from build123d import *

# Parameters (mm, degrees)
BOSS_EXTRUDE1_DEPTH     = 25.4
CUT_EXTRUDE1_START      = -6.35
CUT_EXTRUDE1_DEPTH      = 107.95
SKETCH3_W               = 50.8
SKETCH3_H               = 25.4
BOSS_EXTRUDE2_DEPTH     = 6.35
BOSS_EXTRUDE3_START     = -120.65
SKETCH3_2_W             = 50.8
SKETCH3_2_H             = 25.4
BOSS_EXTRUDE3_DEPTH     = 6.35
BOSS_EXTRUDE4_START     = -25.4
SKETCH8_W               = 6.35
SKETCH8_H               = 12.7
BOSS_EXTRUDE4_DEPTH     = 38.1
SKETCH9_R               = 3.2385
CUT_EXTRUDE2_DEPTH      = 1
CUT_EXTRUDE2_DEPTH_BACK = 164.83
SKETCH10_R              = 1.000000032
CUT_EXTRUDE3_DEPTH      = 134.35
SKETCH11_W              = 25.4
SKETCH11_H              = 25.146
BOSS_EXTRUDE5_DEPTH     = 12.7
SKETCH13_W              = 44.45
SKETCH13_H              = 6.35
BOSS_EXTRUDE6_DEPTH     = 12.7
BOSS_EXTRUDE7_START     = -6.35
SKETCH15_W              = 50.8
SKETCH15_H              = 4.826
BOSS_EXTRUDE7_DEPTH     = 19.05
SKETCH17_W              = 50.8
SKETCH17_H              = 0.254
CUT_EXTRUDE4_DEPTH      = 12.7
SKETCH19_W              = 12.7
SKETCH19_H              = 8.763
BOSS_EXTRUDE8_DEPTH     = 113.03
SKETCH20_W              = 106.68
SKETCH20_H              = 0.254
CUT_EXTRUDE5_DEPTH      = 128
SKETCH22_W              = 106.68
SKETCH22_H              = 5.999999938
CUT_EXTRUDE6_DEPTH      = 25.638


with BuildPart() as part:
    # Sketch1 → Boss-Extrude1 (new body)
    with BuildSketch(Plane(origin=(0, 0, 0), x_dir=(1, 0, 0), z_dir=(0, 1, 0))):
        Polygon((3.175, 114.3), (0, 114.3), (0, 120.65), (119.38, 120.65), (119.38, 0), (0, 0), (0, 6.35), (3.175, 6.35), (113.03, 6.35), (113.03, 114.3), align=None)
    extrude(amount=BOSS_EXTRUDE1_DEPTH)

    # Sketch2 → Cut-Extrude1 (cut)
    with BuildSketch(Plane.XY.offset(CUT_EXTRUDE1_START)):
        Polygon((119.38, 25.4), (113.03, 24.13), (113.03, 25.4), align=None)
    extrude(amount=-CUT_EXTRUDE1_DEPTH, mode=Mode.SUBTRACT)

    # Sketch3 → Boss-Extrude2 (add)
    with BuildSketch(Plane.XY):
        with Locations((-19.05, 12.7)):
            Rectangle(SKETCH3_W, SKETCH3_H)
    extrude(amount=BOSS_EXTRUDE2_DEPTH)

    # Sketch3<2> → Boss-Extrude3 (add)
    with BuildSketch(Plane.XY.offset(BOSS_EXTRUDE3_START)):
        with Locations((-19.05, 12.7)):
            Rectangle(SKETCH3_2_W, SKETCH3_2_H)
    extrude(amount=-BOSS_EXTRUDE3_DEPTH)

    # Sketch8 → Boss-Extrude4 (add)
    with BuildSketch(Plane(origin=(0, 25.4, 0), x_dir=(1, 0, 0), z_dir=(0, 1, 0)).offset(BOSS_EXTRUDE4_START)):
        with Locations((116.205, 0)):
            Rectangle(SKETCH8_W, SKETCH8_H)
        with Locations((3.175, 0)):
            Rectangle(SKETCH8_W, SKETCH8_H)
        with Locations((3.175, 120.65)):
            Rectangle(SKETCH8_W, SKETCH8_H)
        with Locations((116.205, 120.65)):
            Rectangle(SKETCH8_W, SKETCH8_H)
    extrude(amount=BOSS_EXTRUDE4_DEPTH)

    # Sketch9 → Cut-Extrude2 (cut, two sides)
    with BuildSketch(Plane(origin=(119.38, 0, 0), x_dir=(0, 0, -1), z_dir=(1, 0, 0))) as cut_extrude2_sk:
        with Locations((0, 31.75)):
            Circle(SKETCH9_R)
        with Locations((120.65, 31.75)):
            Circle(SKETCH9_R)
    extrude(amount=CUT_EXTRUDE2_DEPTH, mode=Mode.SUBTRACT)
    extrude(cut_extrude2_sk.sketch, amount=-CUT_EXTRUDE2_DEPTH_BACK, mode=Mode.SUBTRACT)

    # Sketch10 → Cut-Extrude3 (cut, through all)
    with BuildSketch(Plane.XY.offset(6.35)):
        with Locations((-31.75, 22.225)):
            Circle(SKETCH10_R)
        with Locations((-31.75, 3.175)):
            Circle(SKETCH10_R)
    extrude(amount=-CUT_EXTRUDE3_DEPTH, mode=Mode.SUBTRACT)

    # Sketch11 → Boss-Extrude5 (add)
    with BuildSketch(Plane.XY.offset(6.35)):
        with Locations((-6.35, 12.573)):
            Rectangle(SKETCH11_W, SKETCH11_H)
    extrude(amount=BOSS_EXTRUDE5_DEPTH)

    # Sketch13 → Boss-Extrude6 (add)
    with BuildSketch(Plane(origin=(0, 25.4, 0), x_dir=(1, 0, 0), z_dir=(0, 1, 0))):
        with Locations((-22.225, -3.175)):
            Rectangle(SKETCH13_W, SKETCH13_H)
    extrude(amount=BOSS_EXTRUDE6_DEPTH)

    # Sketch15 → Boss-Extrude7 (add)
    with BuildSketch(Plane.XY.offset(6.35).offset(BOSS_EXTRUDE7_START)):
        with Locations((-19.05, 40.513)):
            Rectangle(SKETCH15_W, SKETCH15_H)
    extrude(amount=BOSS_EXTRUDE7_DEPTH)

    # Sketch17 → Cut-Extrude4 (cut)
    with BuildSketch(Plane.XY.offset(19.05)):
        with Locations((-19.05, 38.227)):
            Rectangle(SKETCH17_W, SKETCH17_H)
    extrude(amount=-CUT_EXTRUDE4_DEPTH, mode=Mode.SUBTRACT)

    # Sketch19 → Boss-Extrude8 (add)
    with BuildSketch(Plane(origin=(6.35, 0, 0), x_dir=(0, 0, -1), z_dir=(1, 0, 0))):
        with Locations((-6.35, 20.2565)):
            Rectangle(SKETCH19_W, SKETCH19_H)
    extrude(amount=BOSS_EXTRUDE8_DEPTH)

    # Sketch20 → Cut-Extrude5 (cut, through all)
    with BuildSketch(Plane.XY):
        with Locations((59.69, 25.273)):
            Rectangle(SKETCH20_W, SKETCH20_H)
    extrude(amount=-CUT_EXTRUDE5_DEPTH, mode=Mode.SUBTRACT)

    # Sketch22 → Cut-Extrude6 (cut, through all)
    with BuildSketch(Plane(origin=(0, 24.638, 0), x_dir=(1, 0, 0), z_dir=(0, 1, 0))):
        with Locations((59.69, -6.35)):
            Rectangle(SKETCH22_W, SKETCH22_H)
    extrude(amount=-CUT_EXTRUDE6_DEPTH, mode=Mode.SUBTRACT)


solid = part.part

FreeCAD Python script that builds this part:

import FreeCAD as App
import Part
import Sketcher

V = App.Vector
Q = App.Units.Quantity


def add_polygon(sketch, points):
    """Adds a closed chain of lines whose ends are joined by coincident constraints."""
    first, n = sketch.GeometryCount, len(points)
    for a, b in zip(points, points[1:] + points[:1]):
        sketch.addGeometry(Part.LineSegment(App.Vector(*a, 0), App.Vector(*b, 0)), False)
    for i in range(n):
        sketch.addConstraint(Sketcher.Constraint("Coincident", first + i, 2, first + (i + 1) % n, 1))

doc = App.newDocument("Part")
body = doc.addObject("PartDesign::Body", "Body")

sketch1 = doc.addObject("Sketcher::SketchObject", "Sketch")
body.addObject(sketch1)
sketch1.AttachmentSupport = (doc.XZ_Plane, [""])
sketch1.MapMode = "FlatFace"
add_polygon(sketch1, [(0, -114), (113, -114), (113, -6), (0, -6), (0, 0), (119, 0), (119, -121), (0, -121)])
sketch1.addConstraint([
    Sketcher.Constraint("Horizontal", 0),
    Sketcher.Constraint("Vertical", 1),
    Sketcher.Constraint("Horizontal", 2),
    Sketcher.Constraint("Vertical", 3),
    Sketcher.Constraint("Horizontal", 4),
    Sketcher.Constraint("Vertical", 5),
    Sketcher.Constraint("Horizontal", 6),
    Sketcher.Constraint("Vertical", 7),
    Sketcher.Constraint("Coincident", 3, 2, -1, 1),
    Sketcher.Constraint("PointOnObject", 6, 2, -2),
    Sketcher.Constraint("Equal", 3, 7),
    Sketcher.Constraint("DistanceX", 4, 1, 4, 2, Q("4.7 in")),
    Sketcher.Constraint("DistanceX", 0, 1, 0, 2, Q("4.45 in")),
    Sketcher.Constraint("DistanceY", 1, 1, 1, 2, Q("4.25 in")),
    Sketcher.Constraint("DistanceY", 3, 1, 3, 2, Q("0.25 in")),
])
pad1 = doc.addObject("PartDesign::Pad", "Pad")
body.addObject(pad1)
pad1.Profile = sketch1
pad1.Length = Q("1 in")
pad1.Reversed = True

sketch2 = doc.addObject("Sketcher::SketchObject", "Sketch001")
body.addObject(sketch2)
sketch2.AttachmentSupport = (doc.XY_Plane, [""])
sketch2.MapMode = "FlatFace"
sketch2.AttachmentOffset = App.Placement(V(0, 0, -0.25 * 25.4), App.Rotation())
add_polygon(sketch2, [(113, 24.1), (119.4, 25.4), (113, 25.4)])
sketch2.addConstraint([
    Sketcher.Constraint("Horizontal", 1),
    Sketcher.Constraint("Vertical", 2),
    Sketcher.Constraint("DistanceY", -1, 1, 0, 2, Q("1 in")),
    Sketcher.Constraint("DistanceX", 1, 2, 1, 1, Q("0.25 in")),
    Sketcher.Constraint("DistanceY", 2, 2, 2, 1, Q("0.05 in")),
    Sketcher.Constraint("DistanceX", -1, 1, 0, 2, Q("4.7 in")),
])
pocket1 = doc.addObject("PartDesign::Pocket", "Pocket")
body.addObject(pocket1)
pocket1.Profile = sketch2
pocket1.Length = Q("4.25 in")

sketch3 = doc.addObject("Sketcher::SketchObject", "Sketch002")
body.addObject(sketch3)
sketch3.AttachmentSupport = (doc.XY_Plane, [""])
sketch3.MapMode = "FlatFace"
add_polygon(sketch3, [(-44, 25), (-44, 0), (6, 0), (6, 25)])
sketch3.addConstraint([
    Sketcher.Constraint("Vertical", 0),
    Sketcher.Constraint("Horizontal", 1),
    Sketcher.Constraint("Vertical", 2),
    Sketcher.Constraint("Horizontal", 3),
    Sketcher.Constraint("PointOnObject", 0, 2, -1),
    Sketcher.Constraint("DistanceX", 1, 1, 1, 2, Q("2 in")),
    Sketcher.Constraint("DistanceY", 0, 2, 0, 1, Q("1 in")),
    Sketcher.Constraint("DistanceX", 0, 2, -1, 1, Q("1.75 in")),
])
pad2 = doc.addObject("PartDesign::Pad", "Pad001")
body.addObject(pad2)
pad2.Profile = sketch3
pad2.Length = Q("0.25 in")

sketch4 = doc.addObject("Sketcher::SketchObject", "Sketch003")
body.addObject(sketch4)
sketch4.AttachmentSupport = (doc.XY_Plane, [""])
sketch4.MapMode = "FlatFace"
sketch4.AttachmentOffset = App.Placement(V(0, 0, -4.75 * 25.4), App.Rotation())
add_polygon(sketch4, [(-44, 25), (-44, 0), (6, 0), (6, 25)])
sketch4.addConstraint([
    Sketcher.Constraint("Vertical", 0),
    Sketcher.Constraint("Horizontal", 1),
    Sketcher.Constraint("Vertical", 2),
    Sketcher.Constraint("Horizontal", 3),
    Sketcher.Constraint("PointOnObject", 0, 2, -1),
    Sketcher.Constraint("DistanceX", 1, 1, 1, 2, Q("2 in")),
    Sketcher.Constraint("DistanceY", 0, 2, 0, 1, Q("1 in")),
    Sketcher.Constraint("DistanceX", 0, 2, -1, 1, Q("1.75 in")),
])
pad3 = doc.addObject("PartDesign::Pad", "Pad002")
body.addObject(pad3)
pad3.Profile = sketch4
pad3.Length = Q("0.25 in")
pad3.Reversed = True

sketch5 = doc.addObject("Sketcher::SketchObject", "Sketch004")
body.addObject(sketch5)
sketch5.AttachmentSupport = (doc.XZ_Plane, [""])
sketch5.MapMode = "FlatFace"
add_polygon(sketch5, [(113, -6), (113, 6), (119, 6), (119, -6)])
add_polygon(sketch5, [(0, -6), (0, 6), (6, 6), (6, -6)])
add_polygon(sketch5, [(0, -127), (0, -114), (6, -114), (6, -127)])
add_polygon(sketch5, [(113, -127), (113, -114), (119, -114), (119, -127)])
sketch5.addConstraint([
    Sketcher.Constraint("Vertical", 0),
    Sketcher.Constraint("Horizontal", 1),
    Sketcher.Constraint("Vertical", 2),
    Sketcher.Constraint("Horizontal", 3),
    Sketcher.Constraint("Vertical", 4),
    Sketcher.Constraint("Horizontal", 5),
    Sketcher.Constraint("Vertical", 6),
    Sketcher.Constraint("Horizontal", 7),
    Sketcher.Constraint("Vertical", 8),
    Sketcher.Constraint("Horizontal", 9),
    Sketcher.Constraint("Vertical", 10),
    Sketcher.Constraint("Horizontal", 11),
    Sketcher.Constraint("Vertical", 12),
    Sketcher.Constraint("Horizontal", 13),
    Sketcher.Constraint("Vertical", 14),
    Sketcher.Constraint("Horizontal", 15),
    Sketcher.Constraint("Symmetric", 4, 2, 7, 2, -1, 1),
    Sketcher.Constraint("PointOnObject", 8, 2, -2),
    Sketcher.Constraint("Horizontal", 1, 2, 4, 2),
    Sketcher.Constraint("Horizontal", 3, 2, 6, 2),
    Sketcher.Constraint("Horizontal", 9, 2, 12, 2),
    Sketcher.Constraint("Horizontal", 11, 2, 14, 2),
    Sketcher.Constraint("Vertical", 6, 2, 9, 2),
    Sketcher.Constraint("Vertical", 3, 2, 12, 2),
    Sketcher.Constraint("Vertical", 2, 2, 13, 2),
    Sketcher.Constraint("Equal", 3, 5),
    Sketcher.Constraint("Equal", 6, 8),
    Sketcher.Constraint("DistanceY", 0, 1, 0, 2, Q("0.5 in")),
    Sketcher.Constraint("DistanceY", 10, 2, -1, 1, Q("5 in")),
    Sketcher.Constraint("DistanceX", 1, 1, 1, 2, Q("0.25 in")),
    Sketcher.Constraint("DistanceX", -1, 1, 1, 2, Q("4.7 in")),
])
pad4 = doc.addObject("PartDesign::Pad", "Pad003")
body.addObject(pad4)
pad4.Profile = sketch5
pad4.Length = Q("1.5 in")
pad4.Reversed = True

sketch6 = doc.addObject("Sketcher::SketchObject", "Sketch005")
body.addObject(sketch6)
sketch6.AttachmentSupport = (doc.YZ_Plane, [""])
sketch6.MapMode = "FlatFace"
sketch6.AttachmentOffset = App.Placement(V(0, 0, 4.7 * 25.4), App.Rotation())
sketch6.addGeometry([
    Part.Circle(V(31.8, 0, 0), V(0, 0, 1), 3.2),
    Part.Circle(V(31.8, -120.7, 0), V(0, 0, 1), 3.2),
], False)
sketch6.addConstraint([
    Sketcher.Constraint("Equal", 0, 1),
    Sketcher.Constraint("PointOnObject", 0, 3, -1),
    Sketcher.Constraint("Vertical", 0, 3, 1, 3),
    Sketcher.Constraint("Diameter", 0, Q("0.255 in")),
    Sketcher.Constraint("DistanceX", -1, 1, 0, 3, Q("1.25 in")),
    Sketcher.Constraint("DistanceY", 1, 3, -1, 1, Q("4.75 in")),
])
pocket2 = doc.addObject("PartDesign::Pocket", "Pocket001")
body.addObject(pocket2)
pocket2.Profile = sketch6
pocket2.Type = "ThroughAll"
pocket2.Midplane = True

sketch7 = doc.addObject("Sketcher::SketchObject", "Sketch006")
body.addObject(sketch7)
sketch7.AttachmentSupport = (doc.XY_Plane, [""])
sketch7.MapMode = "FlatFace"
sketch7.AttachmentOffset = App.Placement(V(0, 0, 0.25 * 25.4), App.Rotation())
sketch7.addGeometry([
    Part.Circle(V(-31.8, 22.2, 0), V(0, 0, 1), 1),
    Part.Circle(V(-31.8, 3.2, 0), V(0, 0, 1), 1),
], False)
sketch7.addConstraint([
    Sketcher.Constraint("Equal", 0, 1),
    Sketcher.Constraint("Vertical", 0, 3, 1, 3),
    Sketcher.Constraint("Diameter", 0, 2.0),
    Sketcher.Constraint("DistanceX", 0, 3, -1, 1, Q("1.25 in")),
    Sketcher.Constraint("DistanceY", 1, 3, 0, 3, Q("0.75 in")),
    Sketcher.Constraint("DistanceY", -1, 1, 0, 3, Q("0.875 in")),
])
pocket3 = doc.addObject("PartDesign::Pocket", "Pocket002")
body.addObject(pocket3)
pocket3.Profile = sketch7
pocket3.Type = "ThroughAll"

sketch8 = doc.addObject("Sketcher::SketchObject", "Sketch007")
body.addObject(sketch8)
sketch8.AttachmentSupport = (doc.XY_Plane, [""])
sketch8.MapMode = "FlatFace"
sketch8.AttachmentOffset = App.Placement(V(0, 0, 0.25 * 25.4), App.Rotation())
add_polygon(sketch8, [(-19, 25), (-19, 0), (6, 0), (6, 25)])
sketch8.addConstraint([
    Sketcher.Constraint("Vertical", 0),
    Sketcher.Constraint("Horizontal", 1),
    Sketcher.Constraint("Vertical", 2),
    Sketcher.Constraint("Horizontal", 3),
    Sketcher.Constraint("PointOnObject", 0, 2, -1),
    Sketcher.Constraint("DistanceX", 1, 1, 1, 2, Q("1 in")),
    Sketcher.Constraint("DistanceY", 0, 2, 0, 1, Q("0.99 in")),
    Sketcher.Constraint("DistanceX", 0, 2, -1, 1, Q("0.75 in")),
])
pad5 = doc.addObject("PartDesign::Pad", "Pad004")
body.addObject(pad5)
pad5.Profile = sketch8
pad5.Length = Q("0.5 in")

sketch9 = doc.addObject("Sketcher::SketchObject", "Sketch008")
body.addObject(sketch9)
sketch9.AttachmentSupport = (doc.XZ_Plane, [""])
sketch9.MapMode = "FlatFace"
sketch9.AttachmentOffset = App.Placement(V(0, 0, -1 * 25.4), App.Rotation())
add_polygon(sketch9, [(-44, 0), (-44, 6), (0, 6), (0, 0)])
sketch9.addConstraint([
    Sketcher.Constraint("Vertical", 0),
    Sketcher.Constraint("Horizontal", 1),
    Sketcher.Constraint("Vertical", 2),
    Sketcher.Constraint("Horizontal", 3),
    Sketcher.Constraint("Coincident", 2, 2, -1, 1),
    Sketcher.Constraint("DistanceX", 1, 1, 1, 2, Q("1.75 in")),
    Sketcher.Constraint("DistanceY", 0, 1, 0, 2, Q("0.25 in")),
])
pad6 = doc.addObject("PartDesign::Pad", "Pad005")
body.addObject(pad6)
pad6.Profile = sketch9
pad6.Length = Q("0.5 in")
pad6.Reversed = True

sketch10 = doc.addObject("Sketcher::SketchObject", "Sketch009")
body.addObject(sketch10)
sketch10.AttachmentSupport = (doc.XY_Plane, [""])
sketch10.MapMode = "FlatFace"
add_polygon(sketch10, [(-44.5, 42.9), (-44.5, 38.1), (6.3, 38.1), (6.3, 42.9)])
sketch10.addConstraint([
    Sketcher.Constraint("Vertical", 0),
    Sketcher.Constraint("Horizontal", 1),
    Sketcher.Constraint("Vertical", 2),
    Sketcher.Constraint("Horizontal", 3),
    Sketcher.Constraint("DistanceX", 1, 1, 1, 2, Q("2 in")),
    Sketcher.Constraint("DistanceY", 0, 2, 0, 1, Q("0.19 in")),
    Sketcher.Constraint("DistanceY", -1, 1, 0, 2, Q("1.5 in")),
    Sketcher.Constraint("DistanceX", 0, 2, -1, 1, Q("1.75 in")),
])
pad7 = doc.addObject("PartDesign::Pad", "Pad006")
body.addObject(pad7)
pad7.Profile = sketch10
pad7.Length = Q("0.75 in")

sketch11 = doc.addObject("Sketcher::SketchObject", "Sketch010")
body.addObject(sketch11)
sketch11.AttachmentSupport = (doc.XY_Plane, [""])
sketch11.MapMode = "FlatFace"
sketch11.AttachmentOffset = App.Placement(V(0, 0, 0.75 * 25.4), App.Rotation())
add_polygon(sketch11, [(-44.45, 38.35), (-44.45, 38.1), (6.35, 38.1), (6.35, 38.35)])
sketch11.addConstraint([
    Sketcher.Constraint("Vertical", 0),
    Sketcher.Constraint("Horizontal", 1),
    Sketcher.Constraint("Vertical", 2),
    Sketcher.Constraint("Horizontal", 3),
    Sketcher.Constraint("DistanceX", 1, 1, 1, 2, Q("2 in")),
    Sketcher.Constraint("DistanceY", 0, 2, 0, 1, Q("0.01 in")),
    Sketcher.Constraint("DistanceY", -1, 1, 0, 2, Q("1.5 in")),
    Sketcher.Constraint("DistanceX", 0, 2, -1, 1, Q("1.75 in")),
])
pocket4 = doc.addObject("PartDesign::Pocket", "Pocket003")
body.addObject(pocket4)
pocket4.Profile = sketch11
pocket4.Length = Q("0.5 in")

sketch12 = doc.addObject("Sketcher::SketchObject", "Sketch011")
body.addObject(sketch12)
sketch12.AttachmentSupport = (doc.YZ_Plane, [""])
sketch12.MapMode = "FlatFace"
sketch12.AttachmentOffset = App.Placement(V(0, 0, 0.25 * 25.4), App.Rotation())
add_polygon(sketch12, [(25, 13), (16, 13), (16, 0), (25, 0)])
sketch12.addConstraint([
    Sketcher.Constraint("Horizontal", 0),
    Sketcher.Constraint("Vertical", 1),
    Sketcher.Constraint("Horizontal", 2),
    Sketcher.Constraint("Vertical", 3),
    Sketcher.Constraint("PointOnObject", 1, 2, -1),
    Sketcher.Constraint("DistanceY", 1, 2, 1, 1, Q("0.5 in")),
    Sketcher.Constraint("DistanceX", 0, 2, 0, 1, Q("0.345 in")),
    Sketcher.Constraint("DistanceX", -1, 1, 2, 2, Q("0.97 in")),
])
pad8 = doc.addObject("PartDesign::Pad", "Pad007")
body.addObject(pad8)
pad8.Profile = sketch12
pad8.Length = Q("4.45 in")

sketch13 = doc.addObject("Sketcher::SketchObject", "Sketch012")
body.addObject(sketch13)
sketch13.AttachmentSupport = (doc.XY_Plane, [""])
sketch13.MapMode = "FlatFace"
add_polygon(sketch13, [(6.35, 25.4), (6.35, 25.15), (113.03, 25.15), (113.03, 25.4)])
sketch13.addConstraint([
    Sketcher.Constraint("Vertical", 0),
    Sketcher.Constraint("Horizontal", 1),
    Sketcher.Constraint("Vertical", 2),
    Sketcher.Constraint("Horizontal", 3),
    Sketcher.Constraint("DistanceX", 1, 1, 1, 2, Q("4.2 in")),
    Sketcher.Constraint("DistanceY", -1, 1, 2, 2, Q("1 in")),
    Sketcher.Constraint("DistanceY", 0, 2, 0, 1, Q("0.01 in")),
    Sketcher.Constraint("DistanceX", -1, 1, 0, 2, Q("0.25 in")),
])
pocket5 = doc.addObject("PartDesign::Pocket", "Pocket004")
body.addObject(pocket5)
pocket5.Profile = sketch13
pocket5.Type = "ThroughAll"

sketch14 = doc.addObject("Sketcher::SketchObject", "Sketch013")
body.addObject(sketch14)
sketch14.AttachmentSupport = (doc.XZ_Plane, [""])
sketch14.MapMode = "FlatFace"
sketch14.AttachmentOffset = App.Placement(V(0, 0, -0.97 * 25.4), App.Rotation())
add_polygon(sketch14, [(6, 3), (6, 9), (113, 9), (113, 3)])
sketch14.addConstraint([
    Sketcher.Constraint("Vertical", 0),
    Sketcher.Constraint("Horizontal", 1),
    Sketcher.Constraint("Vertical", 2),
    Sketcher.Constraint("Horizontal", 3),
    Sketcher.Constraint("DistanceX", 1, 1, 1, 2, Q("4.2 in")),
    Sketcher.Constraint("DistanceX", -1, 1, 0, 2, Q("0.25 in")),
    Sketcher.Constraint("DistanceY", 0, 1, 0, 2, 6.0),
    Sketcher.Constraint("DistanceY", -1, 1, 0, 2, 9.35),
])
pocket6 = doc.addObject("PartDesign::Pocket", "Pocket005")
body.addObject(pocket6)
pocket6.Profile = sketch14
pocket6.Type = "ThroughAll"
pocket6.Reversed = True

doc.recompute()
